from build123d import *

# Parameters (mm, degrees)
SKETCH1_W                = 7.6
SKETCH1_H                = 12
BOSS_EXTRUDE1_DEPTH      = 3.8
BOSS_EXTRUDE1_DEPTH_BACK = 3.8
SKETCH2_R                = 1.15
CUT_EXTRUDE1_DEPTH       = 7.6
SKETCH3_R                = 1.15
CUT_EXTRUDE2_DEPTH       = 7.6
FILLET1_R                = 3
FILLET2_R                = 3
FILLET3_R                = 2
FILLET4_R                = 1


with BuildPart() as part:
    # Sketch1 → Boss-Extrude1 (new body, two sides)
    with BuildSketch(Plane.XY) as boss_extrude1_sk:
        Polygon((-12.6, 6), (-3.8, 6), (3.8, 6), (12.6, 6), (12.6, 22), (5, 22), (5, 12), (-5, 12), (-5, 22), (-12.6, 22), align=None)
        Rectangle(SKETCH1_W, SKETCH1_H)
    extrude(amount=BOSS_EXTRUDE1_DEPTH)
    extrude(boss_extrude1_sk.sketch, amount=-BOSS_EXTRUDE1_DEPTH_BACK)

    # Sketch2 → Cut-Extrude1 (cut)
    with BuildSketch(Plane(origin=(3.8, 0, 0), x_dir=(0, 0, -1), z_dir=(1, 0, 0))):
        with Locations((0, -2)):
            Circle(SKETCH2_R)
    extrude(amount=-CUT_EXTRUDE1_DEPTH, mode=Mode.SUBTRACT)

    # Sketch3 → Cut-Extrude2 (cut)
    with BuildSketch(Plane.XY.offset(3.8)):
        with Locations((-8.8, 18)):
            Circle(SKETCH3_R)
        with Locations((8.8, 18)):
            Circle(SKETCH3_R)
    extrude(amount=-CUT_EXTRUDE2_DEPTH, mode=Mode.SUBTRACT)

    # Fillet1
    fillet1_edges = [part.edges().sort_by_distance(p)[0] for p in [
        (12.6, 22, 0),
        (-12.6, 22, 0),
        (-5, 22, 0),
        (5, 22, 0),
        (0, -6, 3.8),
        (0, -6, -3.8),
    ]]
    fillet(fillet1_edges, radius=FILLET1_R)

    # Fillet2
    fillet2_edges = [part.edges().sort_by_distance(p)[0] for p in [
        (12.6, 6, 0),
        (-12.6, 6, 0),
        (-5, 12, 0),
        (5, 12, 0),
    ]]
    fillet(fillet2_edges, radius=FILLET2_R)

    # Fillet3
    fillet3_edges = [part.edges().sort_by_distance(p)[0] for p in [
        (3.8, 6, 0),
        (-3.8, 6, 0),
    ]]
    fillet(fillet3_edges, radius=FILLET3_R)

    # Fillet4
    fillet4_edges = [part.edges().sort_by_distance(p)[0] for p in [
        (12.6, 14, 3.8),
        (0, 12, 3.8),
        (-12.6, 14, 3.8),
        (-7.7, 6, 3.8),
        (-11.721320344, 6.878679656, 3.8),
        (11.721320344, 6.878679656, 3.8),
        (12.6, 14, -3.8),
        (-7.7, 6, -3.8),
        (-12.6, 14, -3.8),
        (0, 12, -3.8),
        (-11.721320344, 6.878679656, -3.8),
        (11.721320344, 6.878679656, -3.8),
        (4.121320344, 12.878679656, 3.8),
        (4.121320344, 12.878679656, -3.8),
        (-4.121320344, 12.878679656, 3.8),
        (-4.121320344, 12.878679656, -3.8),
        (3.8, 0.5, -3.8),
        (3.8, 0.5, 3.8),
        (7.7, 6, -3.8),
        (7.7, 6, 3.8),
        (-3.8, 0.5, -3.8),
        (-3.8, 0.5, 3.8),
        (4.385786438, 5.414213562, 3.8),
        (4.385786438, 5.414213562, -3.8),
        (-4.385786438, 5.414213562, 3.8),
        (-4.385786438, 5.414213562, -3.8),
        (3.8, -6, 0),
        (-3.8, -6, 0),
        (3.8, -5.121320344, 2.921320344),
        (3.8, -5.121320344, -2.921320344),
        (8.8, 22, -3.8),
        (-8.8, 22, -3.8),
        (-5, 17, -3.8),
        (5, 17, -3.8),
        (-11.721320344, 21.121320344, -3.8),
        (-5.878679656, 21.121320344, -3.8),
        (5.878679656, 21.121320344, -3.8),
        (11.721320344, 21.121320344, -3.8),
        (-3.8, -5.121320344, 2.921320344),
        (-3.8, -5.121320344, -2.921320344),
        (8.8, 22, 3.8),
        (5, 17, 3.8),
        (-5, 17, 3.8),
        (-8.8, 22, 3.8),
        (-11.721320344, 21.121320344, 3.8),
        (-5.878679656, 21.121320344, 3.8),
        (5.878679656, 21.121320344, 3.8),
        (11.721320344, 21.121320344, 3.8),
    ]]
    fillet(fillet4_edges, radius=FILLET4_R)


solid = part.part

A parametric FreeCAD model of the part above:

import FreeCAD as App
import Part
import Sketcher
from FreeCAD import Vector
Q = App.Units.Quantity


def edges_at(feature, points):
    """Names of the edges that pass closest to the given points."""
    edges = feature.Shape.Edges
    near = lambda p: min(range(len(edges)), key=lambda i: edges[i].distToShape(Part.Vertex(*p))[0])
    return sorted({f"Edge{near(p) + 1}" for p in points})


def add_polygon(sketch, points):
    """Adds a closed chain of lines whose ends are joined by coincident constraints."""
    first, n = sketch.GeometryCount, len(points)
    for a, b in zip(points, points[1:] + points[:1]):
        sketch.addGeometry(Part.LineSegment(App.Vector(*a, 0), App.Vector(*b, 0)), False)
    for i in range(n):
        sketch.addConstraint(Sketcher.Constraint("Coincident", first + i, 2, first + (i + 1) % n, 1))

doc = App.newDocument("Part")
body = doc.addObject("PartDesign::Body", "Body")

# Sketch on XY plane
sketch1 = doc.addObject("Sketcher::SketchObject", "Sketch")
body.addObject(sketch1)
sketch1.AttachmentSupport = (doc.XY_Plane, [""])
sketch1.MapMode = "FlatFace"
add_polygon(sketch1, [(-13, 6), (-4, 6), (-4, -6), (4, -6), (4, 6), (13, 6), (13, 22), (5, 22), (5, 12), (-5, 12), (-5, 22), (-13, 22)])  # lines 0-11
sketch1.addConstraint(Sketcher.Constraint("Horizontal", 0))
sketch1.addConstraint(Sketcher.Constraint("Vertical", 1))
sketch1.addConstraint(Sketcher.Constraint("Horizontal", 2))
sketch1.addConstraint(Sketcher.Constraint("Vertical", 3))
sketch1.addConstraint(Sketcher.Constraint("Horizontal", 4))
sketch1.addConstraint(Sketcher.Constraint("Vertical", 5))
sketch1.addConstraint(Sketcher.Constraint("Horizontal", 6))
sketch1.addConstraint(Sketcher.Constraint("Vertical", 7))
sketch1.addConstraint(Sketcher.Constraint("Horizontal", 8))
sketch1.addConstraint(Sketcher.Constraint("Vertical", 9))
sketch1.addConstraint(Sketcher.Constraint("Horizontal", 10))
sketch1.addConstraint(Sketcher.Constraint("Vertical", 11))
sketch1.addConstraint(Sketcher.Constraint("Symmetric", 0, 2, 2, 2, -1, 1))
sketch1.addConstraint(Sketcher.Constraint("Symmetric", 6, 2, 9, 2, -2))
sketch1.addConstraint(Sketcher.Constraint("Symmetric", 4, 2, 11, 2, -2))
sketch1.addConstraint(Sketcher.Constraint("Equal", 2, 6))
sketch1.addConstraint(Sketcher.Constraint("Equal", 8, 7))
sketch1.addConstraint(Sketcher.Constraint("DistanceX", 8, 2, 8, 1, Q("10 mm")))
sketch1.addConstraint(Sketcher.Constraint("DistanceY", 1, 2, 1, 1, Q("12 mm")))
sketch1.addConstraint(Sketcher.Constraint("DistanceY", 5, 1, 5, 2, Q("16 mm")))
sketch1.addConstraint(Sketcher.Constraint("DistanceX", 0, 1, 0, 2, Q("8.8 mm")))
pad1 = doc.addObject("PartDesign::Pad", "Pad")
body.addObject(pad1)
pad1.Profile = sketch1
pad1.Type = "TwoLengths"
pad1.Length = 3.8
pad1.Length2 = 3.8

# Sketch on YZ plane
sketch2 = doc.addObject("Sketcher::SketchObject", "Sketch001")
body.addObject(sketch2)
sketch2.AttachmentSupport = (doc.YZ_Plane, [""])
sketch2.MapMode = "FlatFace"
sketch2.AttachmentOffset = App.Placement(Vector(0, 0, 3.8), App.Rotation())
sketch2.addGeometry(Part.Circle(Vector(-2, 0, 0), Vector(0, 0, 1), 1.1), False)
sketch2.addConstraint(Sketcher.Constraint("PointOnObject", 0, 3, -1))
sketch2.addConstraint(Sketcher.Constraint("Diameter", 0, Q("2.3 mm")))
sketch2.addConstraint(Sketcher.Constraint("DistanceX", 0, 3, -1, 1, Q("2 mm")))
pocket1 = doc.addObject("PartDesign::Pocket", "Pocket")
body.addObject(pocket1)
pocket1.Profile = sketch2
pocket1.Length = 7.6

# Sketch on XY plane
sketch3 = doc.addObject("Sketcher::SketchObject", "Sketch002")
body.addObject(sketch3)
sketch3.AttachmentSupport = (doc.XY_Plane, [""])
sketch3.MapMode = "FlatFace"
sketch3.AttachmentOffset = App.Placement(Vector(0, 0, 3.8), App.Rotation())
sketch3.addGeometry(Part.Circle(Vector(-8.8, 18, 0), Vector(0, 0, 1), 1.1), False)
sketch3.addGeometry(Part.Circle(Vector(8.8, 18, 0), Vector(0, 0, 1), 1.1), False)
sketch3.addConstraint(Sketcher.Constraint("Equal", 0, 1))
sketch3.addConstraint(Sketcher.Constraint("Symmetric", 0, 3, 1, 3, -2))
sketch3.addConstraint(Sketcher.Constraint("Diameter", 0, Q("2.3 mm")))
sketch3.addConstraint(Sketcher.Constraint("DistanceY", -1, 1, 0, 3, Q("18 mm")))
sketch3.addConstraint(Sketcher.Constraint("DistanceX", 0, 3, -1, 1, Q("8.8 mm")))
pocket2 = doc.addObject("PartDesign::Pocket", "Pocket001")
body.addObject(pocket2)
pocket2.Profile = sketch3
pocket2.Length = 7.6
doc.recompute()

fillet = doc.addObject("PartDesign::Fillet", "Fillet")
body.addObject(fillet)
fillet.Base = (pocket2, edges_at(pocket2, [
    (12.6, 22, 0),
    (-12.6, 22, 0),
    (-5, 22, 0),
    (5, 22, 0),
    (0, -6, 3.8),
    (0, -6, -3.8),
]))
fillet.Radius = 3
doc.recompute()

fillet2 = doc.addObject("PartDesign::Fillet", "Fillet001")
body.addObject(fillet2)
fillet2.Base = (fillet, edges_at(fillet, [
    (12.6, 6, 0),
    (-12.6, 6, 0),
    (-5, 12, 0),
    (5, 12, 0),
]))
fillet2.Radius = 3
doc.recompute()

fillet3 = doc.addObject("PartDesign::Fillet", "Fillet002")
body.addObject(fillet3)
fillet3.Base = (fillet2, edges_at(fillet2, [(3.8, 6, 0), (-3.8, 6, 0)]))
fillet3.Radius = 2
doc.recompute()

fillet4 = doc.addObject("PartDesign::Fillet", "Fillet003")
body.addObject(fillet4)
fillet4.Base = (fillet3, edges_at(fillet3, [
    (12.6, 14, 3.8),
    (0, 12, 3.8),
    (-12.6, 14, 3.8),
    (-7.7, 6, 3.8),
    (-11.721, 6.879, 3.8),
    (11.721, 6.879, 3.8),
    (12.6, 14, -3.8),
    (-7.7, 6, -3.8),
    (-12.6, 14, -3.8),
    (0, 12, -3.8),
    (-11.721, 6.879, -3.8),
    (11.721, 6.879, -3.8),
    (4.121, 12.879, 3.8),
    (4.121, 12.879, -3.8),
    (-4.121, 12.879, 3.8),
    (-4.121, 12.879, -3.8),
    (3.8, 0.5, -3.8),
    (3.8, 0.5, 3.8),
    (7.7, 6, -3.8),
    (7.7, 6, 3.8),
    (-3.8, 0.5, -3.8),
    (-3.8, 0.5, 3.8),
    (4.386, 5.414, 3.8),
    (4.386, 5.414, -3.8),
    (-4.386, 5.414, 3.8),
    (-4.386, 5.414, -3.8),
    (3.8, -6, 0),
    (-3.8, -6, 0),
    (3.8, -5.121, 2.921),
    (3.8, -5.121, -2.921),
    (8.8, 22, -3.8),
    (-8.8, 22, -3.8),
    (-5, 17, -3.8),
    (5, 17, -3.8),
    (-11.721, 21.121, -3.8),
    (-5.879, 21.121, -3.8),
    (5.879, 21.121, -3.8),
    (11.721, 21.121, -3.8),
    (-3.8, -5.121, 2.921),
    (-3.8, -5.121, -2.921),
    (8.8, 22, 3.8),
    (5, 17, 3.8),
    (-5, 17, 3.8),
    (-8.8, 22, 3.8),
    (-11.721, 21.121, 3.8),
    (-5.879, 21.121, 3.8),
    (5.879, 21.121, 3.8),
    (11.721, 21.121, 3.8),
]))
fillet4.Radius = 1

doc.recompute()
